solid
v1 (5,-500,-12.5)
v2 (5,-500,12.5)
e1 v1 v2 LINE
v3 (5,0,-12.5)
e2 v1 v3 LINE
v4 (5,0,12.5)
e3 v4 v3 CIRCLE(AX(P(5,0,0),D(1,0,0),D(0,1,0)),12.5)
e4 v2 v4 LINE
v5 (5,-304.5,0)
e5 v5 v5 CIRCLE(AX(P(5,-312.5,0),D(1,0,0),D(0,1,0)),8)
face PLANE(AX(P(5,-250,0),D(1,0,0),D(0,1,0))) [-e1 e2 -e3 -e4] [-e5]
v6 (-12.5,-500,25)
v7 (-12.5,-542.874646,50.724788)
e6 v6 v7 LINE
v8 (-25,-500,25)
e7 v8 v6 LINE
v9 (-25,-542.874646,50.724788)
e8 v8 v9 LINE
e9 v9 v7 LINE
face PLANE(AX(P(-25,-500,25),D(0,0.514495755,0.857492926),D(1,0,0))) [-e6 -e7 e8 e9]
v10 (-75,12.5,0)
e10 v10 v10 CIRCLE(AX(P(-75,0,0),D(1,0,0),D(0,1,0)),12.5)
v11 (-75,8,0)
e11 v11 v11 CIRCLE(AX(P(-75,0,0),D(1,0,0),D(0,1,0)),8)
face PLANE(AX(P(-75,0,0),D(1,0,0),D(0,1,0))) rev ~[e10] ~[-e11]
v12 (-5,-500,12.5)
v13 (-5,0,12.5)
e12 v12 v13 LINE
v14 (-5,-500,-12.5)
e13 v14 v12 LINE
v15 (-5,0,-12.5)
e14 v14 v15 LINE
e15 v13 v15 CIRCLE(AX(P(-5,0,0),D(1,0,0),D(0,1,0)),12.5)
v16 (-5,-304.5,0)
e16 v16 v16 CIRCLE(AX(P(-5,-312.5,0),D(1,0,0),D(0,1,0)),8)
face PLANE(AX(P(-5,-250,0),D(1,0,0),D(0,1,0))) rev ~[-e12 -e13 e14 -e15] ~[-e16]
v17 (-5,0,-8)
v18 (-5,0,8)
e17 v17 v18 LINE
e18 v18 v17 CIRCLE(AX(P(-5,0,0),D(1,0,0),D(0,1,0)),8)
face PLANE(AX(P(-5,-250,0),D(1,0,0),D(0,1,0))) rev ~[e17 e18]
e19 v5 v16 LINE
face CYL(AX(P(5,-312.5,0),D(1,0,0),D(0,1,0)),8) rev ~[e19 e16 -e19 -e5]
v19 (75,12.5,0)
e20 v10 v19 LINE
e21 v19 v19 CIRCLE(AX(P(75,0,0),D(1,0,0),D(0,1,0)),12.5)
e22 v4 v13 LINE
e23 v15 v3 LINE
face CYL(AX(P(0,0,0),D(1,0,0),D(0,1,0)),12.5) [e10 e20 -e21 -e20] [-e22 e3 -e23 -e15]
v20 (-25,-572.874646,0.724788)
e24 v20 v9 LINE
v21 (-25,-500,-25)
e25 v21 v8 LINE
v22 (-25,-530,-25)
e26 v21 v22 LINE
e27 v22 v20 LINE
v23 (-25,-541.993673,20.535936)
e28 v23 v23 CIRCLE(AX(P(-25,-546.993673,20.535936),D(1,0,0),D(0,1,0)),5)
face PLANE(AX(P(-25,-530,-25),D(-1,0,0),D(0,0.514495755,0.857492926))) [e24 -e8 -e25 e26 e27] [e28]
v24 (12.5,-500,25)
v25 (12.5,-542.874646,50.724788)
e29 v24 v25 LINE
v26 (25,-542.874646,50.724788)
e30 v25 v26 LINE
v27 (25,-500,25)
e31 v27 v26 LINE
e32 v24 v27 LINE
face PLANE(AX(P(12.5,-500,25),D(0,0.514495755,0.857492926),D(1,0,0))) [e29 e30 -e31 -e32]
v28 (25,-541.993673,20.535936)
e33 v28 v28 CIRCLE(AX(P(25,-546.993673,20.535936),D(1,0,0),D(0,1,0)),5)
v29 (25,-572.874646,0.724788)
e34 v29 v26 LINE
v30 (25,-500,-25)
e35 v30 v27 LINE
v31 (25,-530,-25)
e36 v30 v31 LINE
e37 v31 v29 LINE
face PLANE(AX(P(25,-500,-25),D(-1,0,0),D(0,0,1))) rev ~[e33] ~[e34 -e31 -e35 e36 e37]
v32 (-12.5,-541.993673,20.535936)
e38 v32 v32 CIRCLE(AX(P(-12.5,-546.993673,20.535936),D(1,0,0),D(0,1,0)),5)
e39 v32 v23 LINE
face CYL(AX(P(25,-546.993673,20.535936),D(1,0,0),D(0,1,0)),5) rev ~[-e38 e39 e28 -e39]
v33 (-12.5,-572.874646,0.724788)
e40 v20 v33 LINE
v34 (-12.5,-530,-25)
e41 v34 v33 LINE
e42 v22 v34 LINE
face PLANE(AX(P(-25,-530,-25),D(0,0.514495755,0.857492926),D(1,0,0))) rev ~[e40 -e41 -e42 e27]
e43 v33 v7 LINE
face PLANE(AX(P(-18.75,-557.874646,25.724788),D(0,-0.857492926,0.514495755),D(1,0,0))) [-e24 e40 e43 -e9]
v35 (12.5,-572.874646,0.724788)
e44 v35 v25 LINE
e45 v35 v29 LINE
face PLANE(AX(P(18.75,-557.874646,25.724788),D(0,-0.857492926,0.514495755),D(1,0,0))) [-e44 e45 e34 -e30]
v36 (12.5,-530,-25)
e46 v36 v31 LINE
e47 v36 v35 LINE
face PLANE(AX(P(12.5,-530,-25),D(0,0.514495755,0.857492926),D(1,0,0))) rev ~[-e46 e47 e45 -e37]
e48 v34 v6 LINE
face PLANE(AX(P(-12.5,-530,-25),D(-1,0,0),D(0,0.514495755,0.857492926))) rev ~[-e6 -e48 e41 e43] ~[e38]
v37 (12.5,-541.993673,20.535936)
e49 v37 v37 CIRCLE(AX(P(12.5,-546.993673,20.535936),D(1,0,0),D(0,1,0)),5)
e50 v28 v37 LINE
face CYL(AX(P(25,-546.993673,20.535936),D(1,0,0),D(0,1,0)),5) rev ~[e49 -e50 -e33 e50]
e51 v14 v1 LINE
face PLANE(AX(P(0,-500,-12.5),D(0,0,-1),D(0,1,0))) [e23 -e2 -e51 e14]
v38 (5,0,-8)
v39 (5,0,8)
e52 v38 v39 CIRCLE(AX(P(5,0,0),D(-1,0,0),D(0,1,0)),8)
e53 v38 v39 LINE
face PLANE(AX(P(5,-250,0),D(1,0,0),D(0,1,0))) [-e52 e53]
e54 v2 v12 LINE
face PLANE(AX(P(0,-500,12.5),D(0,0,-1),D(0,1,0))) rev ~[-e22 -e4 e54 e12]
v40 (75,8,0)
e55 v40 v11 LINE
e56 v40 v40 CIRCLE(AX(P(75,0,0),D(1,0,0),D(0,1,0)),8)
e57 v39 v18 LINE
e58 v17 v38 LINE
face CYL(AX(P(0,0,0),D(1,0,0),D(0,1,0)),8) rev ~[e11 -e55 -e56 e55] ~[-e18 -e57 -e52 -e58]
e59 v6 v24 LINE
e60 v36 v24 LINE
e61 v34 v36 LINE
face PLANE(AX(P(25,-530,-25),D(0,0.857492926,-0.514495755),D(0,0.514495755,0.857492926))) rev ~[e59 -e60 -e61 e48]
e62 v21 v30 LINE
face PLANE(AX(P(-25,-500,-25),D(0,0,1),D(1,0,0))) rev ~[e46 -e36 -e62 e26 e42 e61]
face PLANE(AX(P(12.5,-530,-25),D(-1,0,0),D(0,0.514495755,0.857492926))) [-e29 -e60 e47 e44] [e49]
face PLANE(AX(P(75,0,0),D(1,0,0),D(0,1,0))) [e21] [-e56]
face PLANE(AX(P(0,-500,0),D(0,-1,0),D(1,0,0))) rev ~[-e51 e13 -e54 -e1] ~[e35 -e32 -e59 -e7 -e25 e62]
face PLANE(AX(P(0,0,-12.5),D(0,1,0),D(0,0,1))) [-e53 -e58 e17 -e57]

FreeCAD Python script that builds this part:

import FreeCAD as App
import Part
import Sketcher
Q = App.Units.Quantity


def add_polygon(sketch, points):
    """Adds a closed chain of lines whose ends are joined by coincident constraints."""
    first, n = sketch.GeometryCount, len(points)
    for a, b in zip(points, points[1:] + points[:1]):
        sketch.addGeometry(Part.LineSegment(App.Vector(*a, 0), App.Vector(*b, 0)), False)
    for i in range(n):
        sketch.addConstraint(Sketcher.Constraint("Coincident", first + i, 2, first + (i + 1) % n, 1))

doc = App.newDocument("Part")
body = doc.addObject("PartDesign::Body", "Body")

sketch1 = body.newObject("Sketcher::SketchObject", "Sketch")
sketch1.AttachmentSupport = (doc.getObject("YZ_Plane"), [""])
sketch1.MapMode = "FlatFace"
sketch1.addGeometry([
    Part.Circle(App.Vector(0, 0, 0), App.Vector(0, 0, 1), 12),
    Part.Circle(App.Vector(0, 0, 0), App.Vector(0, 0, 1), 8),
], False)
sketch1.addConstraint([
    Sketcher.Constraint("Coincident", 0, 3, -1, 1),
    Sketcher.Constraint("Coincident", 1, 3, -1, 1),
    Sketcher.Constraint("Diameter", 0, Q("25 mm")),
    Sketcher.Constraint("Diameter", 1, Q("16 mm")),
])
pad1 = body.newObject("PartDesign::Pad", "Pad")
pad1.Profile = sketch1
pad1.Type = "TwoLengths"
pad1.Length = 75
pad1.Length2 = 75

sketch2 = body.newObject("Sketcher::SketchObject", "Sketch001")
sketch2.AttachmentSupport = (doc.getObject("YZ_Plane"), [""])
sketch2.MapMode = "FlatFace"
add_polygon(sketch2, [(-500, 12), (-500, -12), (0, -12), (0, 12)])
sketch2.addConstraint([
    Sketcher.Constraint("Vertical", 0),
    Sketcher.Constraint("Horizontal", 1),
    Sketcher.Constraint("Vertical", 2),
    Sketcher.Constraint("Horizontal", 3),
    Sketcher.Constraint("Symmetric", 1, 2, 2, 2, -1, 1),
    Sketcher.Constraint("DistanceX", 1, 1, 1, 2, Q("500 mm")),
    Sketcher.Constraint("DistanceY", 0, 2, 0, 1, Q("25 mm")),
])
pad2 = body.newObject("PartDesign::Pad", "Pad001")
pad2.Profile = sketch2
pad2.Type = "TwoLengths"
pad2.Length = 5
pad2.Length2 = 5

sketch3 = body.newObject("Sketcher::SketchObject", "Sketch002")
sketch3.AttachmentSupport = (doc.getObject("YZ_Plane"), [""])
sketch3.MapMode = "FlatFace"
sketch3.AttachmentOffset = App.Placement(App.Vector(0, 0, 5), App.Rotation())
sketch3.addGeometry(Part.Circle(App.Vector(-312, 0, 0), App.Vector(0, 0, 1), 8), False)
sketch3.addConstraint([
    Sketcher.Constraint("PointOnObject", 0, 3, -1),
    Sketcher.Constraint("Diameter", 0, Q("16 mm")),
    Sketcher.Constraint("DistanceX", 0, 3, -1, 1, Q("312.5 mm")),
])
pocket1 = body.newObject("PartDesign::Pocket", "Pocket")
pocket1.Profile = sketch3
pocket1.Type = "ThroughAll"
pocket1.Midplane = True

sketch4 = body.newObject("Sketcher::SketchObject", "Sketch003")
sketch4.AttachmentSupport = (doc.getObject("XZ_Plane"), [""])
sketch4.MapMode = "FlatFace"
sketch4.AttachmentOffset = App.Placement(App.Vector(0, 0, 500), App.Rotation())
add_polygon(sketch4, [(-25, 25), (-25, -25), (25, -25), (25, 25)])
sketch4.addConstraint([
    Sketcher.Constraint("Vertical", 0),
    Sketcher.Constraint("Horizontal", 1),
    Sketcher.Constraint("Vertical", 2),
    Sketcher.Constraint("Horizontal", 3),
    Sketcher.Constraint("Symmetric", 0, 2, 2, 2, -1, 1),
    Sketcher.Constraint("Equal", 3, 0),
    Sketcher.Constraint("DistanceX", 1, 1, 1, 2, Q("50 mm")),
])
pad3 = body.newObject("PartDesign::Pad", "Pad002")
pad3.Profile = sketch4
pad3.Length = 30

sketch5 = body.newObject("Sketcher::SketchObject", "Sketch004")
sketch5.AttachmentSupport = (doc.getObject("YZ_Plane"), [""])
sketch5.MapMode = "FlatFace"
sketch5.AttachmentOffset = App.Placement(App.Vector(0, 0, 25), App.Rotation())
add_polygon(sketch5, [(-530, 25), (-530, -25), (-500, 25)])
sketch5.addConstraint([
    Sketcher.Constraint("Vertical", 0),
    Sketcher.Constraint("Horizontal", 2),
    Sketcher.Constraint("DistanceX", 2, 2, 2, 1, Q("30 mm")),
    Sketcher.Constraint("DistanceY", 0, 2, 0, 1, Q("50 mm")),
    Sketcher.Constraint("DistanceX", 0, 2, -1, 1, Q("530 mm")),
    Sketcher.Constraint("DistanceY", 0, 2, -1, 1, Q("25 mm")),
])
pocket2 = body.newObject("PartDesign::Pocket", "Pocket001")
pocket2.Profile = sketch5
pocket2.Length = 50

sketch6 = body.newObject("Sketcher::SketchObject", "Sketch005")
sketch6.Placement = App.Placement(App.Vector(0, -378.676471, 227.205882), App.Rotation(App.Vector(1, 0, 0), App.Vector(0, 0.514495755, 0.857492926), App.Vector(0, -0.857492926, 0.514495755), "ZXY"))
add_polygon(sketch6, [(-25, -236), (-25, -294), (-12, -294), (-12, -236)])
add_polygon(sketch6, [(12, -236), (12, -294), (25, -294), (25, -236)])
sketch6.addConstraint([
    Sketcher.Constraint("Vertical", 0),
    Sketcher.Constraint("Horizontal", 1),
    Sketcher.Constraint("Vertical", 2),
    Sketcher.Constraint("Horizontal", 3),
    Sketcher.Constraint("Vertical", 4),
    Sketcher.Constraint("Horizontal", 5),
    Sketcher.Constraint("Vertical", 6),
    Sketcher.Constraint("Horizontal", 7),
    Sketcher.Constraint("Symmetric", 1, 2, 4, 2, -2),
    Sketcher.Constraint("Symmetric", 3, 2, 6, 2, -2),
    Sketcher.Constraint("DistanceX", 1, 1, 1, 2, Q("12.5 mm")),
    Sketcher.Constraint("DistanceX", 0, 2, -1, 1, Q("25 mm")),
    Sketcher.Constraint("DistanceY", 0, 2, 0, 1, Q("58.309519 mm")),
    Sketcher.Constraint("DistanceY", 0, 2, -1, 1, Q("294.120074 mm")),
])
pad4 = body.newObject("PartDesign::Pad", "Pad003")
pad4.Profile = sketch6
pad4.Length = 50

sketch7 = body.newObject("Sketcher::SketchObject", "Sketch006")
sketch7.AttachmentSupport = (doc.getObject("YZ_Plane"), [""])
sketch7.MapMode = "FlatFace"
sketch7.AttachmentOffset = App.Placement(App.Vector(0, 0, 25), App.Rotation())
sketch7.addGeometry(Part.Circle(App.Vector(-547, 21, 0), App.Vector(0, 0, 1), 5), False)
sketch7.addConstraint([
    Sketcher.Constraint("Diameter", 0, Q("10 mm")),
    Sketcher.Constraint("DistanceX", 0, 3, -1, 1, Q("546.993673 mm")),
    Sketcher.Constraint("DistanceY", -1, 1, 0, 3, Q("20.535936 mm")),
])
pocket3 = body.newObject("PartDesign::Pocket", "Pocket002")
pocket3.Profile = sketch7
pocket3.Type = "ThroughAll"

doc.recompute()
